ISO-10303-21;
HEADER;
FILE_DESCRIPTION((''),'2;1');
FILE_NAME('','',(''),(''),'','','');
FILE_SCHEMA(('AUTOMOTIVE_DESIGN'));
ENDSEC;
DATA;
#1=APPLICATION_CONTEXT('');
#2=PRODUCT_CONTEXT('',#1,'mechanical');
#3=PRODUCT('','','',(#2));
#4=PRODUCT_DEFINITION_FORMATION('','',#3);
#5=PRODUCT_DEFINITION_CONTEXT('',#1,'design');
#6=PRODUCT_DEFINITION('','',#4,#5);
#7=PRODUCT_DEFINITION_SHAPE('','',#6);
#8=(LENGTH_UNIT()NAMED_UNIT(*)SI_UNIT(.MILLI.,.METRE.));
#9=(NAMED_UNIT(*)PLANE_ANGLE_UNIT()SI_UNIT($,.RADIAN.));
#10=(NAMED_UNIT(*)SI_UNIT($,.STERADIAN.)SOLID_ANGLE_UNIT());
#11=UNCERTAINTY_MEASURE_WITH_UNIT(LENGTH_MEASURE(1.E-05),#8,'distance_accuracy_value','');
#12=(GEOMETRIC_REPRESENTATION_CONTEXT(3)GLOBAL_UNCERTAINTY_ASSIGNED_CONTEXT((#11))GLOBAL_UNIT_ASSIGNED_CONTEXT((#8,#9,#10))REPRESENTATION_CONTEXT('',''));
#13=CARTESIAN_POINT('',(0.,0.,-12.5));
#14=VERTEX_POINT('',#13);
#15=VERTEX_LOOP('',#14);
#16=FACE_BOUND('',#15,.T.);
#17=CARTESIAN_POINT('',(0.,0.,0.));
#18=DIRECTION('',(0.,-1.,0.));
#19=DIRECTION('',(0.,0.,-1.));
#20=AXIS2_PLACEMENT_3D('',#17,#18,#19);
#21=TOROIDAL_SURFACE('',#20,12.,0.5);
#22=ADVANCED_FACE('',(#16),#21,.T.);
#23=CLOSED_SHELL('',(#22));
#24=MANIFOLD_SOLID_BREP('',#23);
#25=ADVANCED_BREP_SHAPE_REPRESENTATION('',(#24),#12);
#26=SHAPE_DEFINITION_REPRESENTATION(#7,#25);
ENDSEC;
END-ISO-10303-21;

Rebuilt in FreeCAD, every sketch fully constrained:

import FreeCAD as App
import Part
import Sketcher
Q = App.Units.Quantity

doc = App.newDocument("Part")
body = doc.addObject("PartDesign::Body", "Body")

# Sketch on XY plane
sketch1 = body.newObject("Sketcher::SketchObject", "Sketch")
sketch1.AttachmentSupport = (doc.getObject("XY_Plane"), [""])
sketch1.MapMode = "FlatFace"
sketch1.addGeometry(Part.Circle(App.Vector(-12, 0, 0), App.Vector(0, 0, 1), 0.5), False)
sketch1.addConstraint([
    Sketcher.Constraint("PointOnObject", 0, 3, -1),
    Sketcher.Constraint("Diameter", 0, Q("1 mm")),
    Sketcher.Constraint("DistanceX", 0, 3, -1, 1, Q("12 mm")),
])
revolution = body.newObject("PartDesign::Revolution", "Revolution")
revolution.Profile = sketch1
revolution.ReferenceAxis = (sketch1, ["V_Axis"])
revolution.Angle = 360

doc.recompute()
